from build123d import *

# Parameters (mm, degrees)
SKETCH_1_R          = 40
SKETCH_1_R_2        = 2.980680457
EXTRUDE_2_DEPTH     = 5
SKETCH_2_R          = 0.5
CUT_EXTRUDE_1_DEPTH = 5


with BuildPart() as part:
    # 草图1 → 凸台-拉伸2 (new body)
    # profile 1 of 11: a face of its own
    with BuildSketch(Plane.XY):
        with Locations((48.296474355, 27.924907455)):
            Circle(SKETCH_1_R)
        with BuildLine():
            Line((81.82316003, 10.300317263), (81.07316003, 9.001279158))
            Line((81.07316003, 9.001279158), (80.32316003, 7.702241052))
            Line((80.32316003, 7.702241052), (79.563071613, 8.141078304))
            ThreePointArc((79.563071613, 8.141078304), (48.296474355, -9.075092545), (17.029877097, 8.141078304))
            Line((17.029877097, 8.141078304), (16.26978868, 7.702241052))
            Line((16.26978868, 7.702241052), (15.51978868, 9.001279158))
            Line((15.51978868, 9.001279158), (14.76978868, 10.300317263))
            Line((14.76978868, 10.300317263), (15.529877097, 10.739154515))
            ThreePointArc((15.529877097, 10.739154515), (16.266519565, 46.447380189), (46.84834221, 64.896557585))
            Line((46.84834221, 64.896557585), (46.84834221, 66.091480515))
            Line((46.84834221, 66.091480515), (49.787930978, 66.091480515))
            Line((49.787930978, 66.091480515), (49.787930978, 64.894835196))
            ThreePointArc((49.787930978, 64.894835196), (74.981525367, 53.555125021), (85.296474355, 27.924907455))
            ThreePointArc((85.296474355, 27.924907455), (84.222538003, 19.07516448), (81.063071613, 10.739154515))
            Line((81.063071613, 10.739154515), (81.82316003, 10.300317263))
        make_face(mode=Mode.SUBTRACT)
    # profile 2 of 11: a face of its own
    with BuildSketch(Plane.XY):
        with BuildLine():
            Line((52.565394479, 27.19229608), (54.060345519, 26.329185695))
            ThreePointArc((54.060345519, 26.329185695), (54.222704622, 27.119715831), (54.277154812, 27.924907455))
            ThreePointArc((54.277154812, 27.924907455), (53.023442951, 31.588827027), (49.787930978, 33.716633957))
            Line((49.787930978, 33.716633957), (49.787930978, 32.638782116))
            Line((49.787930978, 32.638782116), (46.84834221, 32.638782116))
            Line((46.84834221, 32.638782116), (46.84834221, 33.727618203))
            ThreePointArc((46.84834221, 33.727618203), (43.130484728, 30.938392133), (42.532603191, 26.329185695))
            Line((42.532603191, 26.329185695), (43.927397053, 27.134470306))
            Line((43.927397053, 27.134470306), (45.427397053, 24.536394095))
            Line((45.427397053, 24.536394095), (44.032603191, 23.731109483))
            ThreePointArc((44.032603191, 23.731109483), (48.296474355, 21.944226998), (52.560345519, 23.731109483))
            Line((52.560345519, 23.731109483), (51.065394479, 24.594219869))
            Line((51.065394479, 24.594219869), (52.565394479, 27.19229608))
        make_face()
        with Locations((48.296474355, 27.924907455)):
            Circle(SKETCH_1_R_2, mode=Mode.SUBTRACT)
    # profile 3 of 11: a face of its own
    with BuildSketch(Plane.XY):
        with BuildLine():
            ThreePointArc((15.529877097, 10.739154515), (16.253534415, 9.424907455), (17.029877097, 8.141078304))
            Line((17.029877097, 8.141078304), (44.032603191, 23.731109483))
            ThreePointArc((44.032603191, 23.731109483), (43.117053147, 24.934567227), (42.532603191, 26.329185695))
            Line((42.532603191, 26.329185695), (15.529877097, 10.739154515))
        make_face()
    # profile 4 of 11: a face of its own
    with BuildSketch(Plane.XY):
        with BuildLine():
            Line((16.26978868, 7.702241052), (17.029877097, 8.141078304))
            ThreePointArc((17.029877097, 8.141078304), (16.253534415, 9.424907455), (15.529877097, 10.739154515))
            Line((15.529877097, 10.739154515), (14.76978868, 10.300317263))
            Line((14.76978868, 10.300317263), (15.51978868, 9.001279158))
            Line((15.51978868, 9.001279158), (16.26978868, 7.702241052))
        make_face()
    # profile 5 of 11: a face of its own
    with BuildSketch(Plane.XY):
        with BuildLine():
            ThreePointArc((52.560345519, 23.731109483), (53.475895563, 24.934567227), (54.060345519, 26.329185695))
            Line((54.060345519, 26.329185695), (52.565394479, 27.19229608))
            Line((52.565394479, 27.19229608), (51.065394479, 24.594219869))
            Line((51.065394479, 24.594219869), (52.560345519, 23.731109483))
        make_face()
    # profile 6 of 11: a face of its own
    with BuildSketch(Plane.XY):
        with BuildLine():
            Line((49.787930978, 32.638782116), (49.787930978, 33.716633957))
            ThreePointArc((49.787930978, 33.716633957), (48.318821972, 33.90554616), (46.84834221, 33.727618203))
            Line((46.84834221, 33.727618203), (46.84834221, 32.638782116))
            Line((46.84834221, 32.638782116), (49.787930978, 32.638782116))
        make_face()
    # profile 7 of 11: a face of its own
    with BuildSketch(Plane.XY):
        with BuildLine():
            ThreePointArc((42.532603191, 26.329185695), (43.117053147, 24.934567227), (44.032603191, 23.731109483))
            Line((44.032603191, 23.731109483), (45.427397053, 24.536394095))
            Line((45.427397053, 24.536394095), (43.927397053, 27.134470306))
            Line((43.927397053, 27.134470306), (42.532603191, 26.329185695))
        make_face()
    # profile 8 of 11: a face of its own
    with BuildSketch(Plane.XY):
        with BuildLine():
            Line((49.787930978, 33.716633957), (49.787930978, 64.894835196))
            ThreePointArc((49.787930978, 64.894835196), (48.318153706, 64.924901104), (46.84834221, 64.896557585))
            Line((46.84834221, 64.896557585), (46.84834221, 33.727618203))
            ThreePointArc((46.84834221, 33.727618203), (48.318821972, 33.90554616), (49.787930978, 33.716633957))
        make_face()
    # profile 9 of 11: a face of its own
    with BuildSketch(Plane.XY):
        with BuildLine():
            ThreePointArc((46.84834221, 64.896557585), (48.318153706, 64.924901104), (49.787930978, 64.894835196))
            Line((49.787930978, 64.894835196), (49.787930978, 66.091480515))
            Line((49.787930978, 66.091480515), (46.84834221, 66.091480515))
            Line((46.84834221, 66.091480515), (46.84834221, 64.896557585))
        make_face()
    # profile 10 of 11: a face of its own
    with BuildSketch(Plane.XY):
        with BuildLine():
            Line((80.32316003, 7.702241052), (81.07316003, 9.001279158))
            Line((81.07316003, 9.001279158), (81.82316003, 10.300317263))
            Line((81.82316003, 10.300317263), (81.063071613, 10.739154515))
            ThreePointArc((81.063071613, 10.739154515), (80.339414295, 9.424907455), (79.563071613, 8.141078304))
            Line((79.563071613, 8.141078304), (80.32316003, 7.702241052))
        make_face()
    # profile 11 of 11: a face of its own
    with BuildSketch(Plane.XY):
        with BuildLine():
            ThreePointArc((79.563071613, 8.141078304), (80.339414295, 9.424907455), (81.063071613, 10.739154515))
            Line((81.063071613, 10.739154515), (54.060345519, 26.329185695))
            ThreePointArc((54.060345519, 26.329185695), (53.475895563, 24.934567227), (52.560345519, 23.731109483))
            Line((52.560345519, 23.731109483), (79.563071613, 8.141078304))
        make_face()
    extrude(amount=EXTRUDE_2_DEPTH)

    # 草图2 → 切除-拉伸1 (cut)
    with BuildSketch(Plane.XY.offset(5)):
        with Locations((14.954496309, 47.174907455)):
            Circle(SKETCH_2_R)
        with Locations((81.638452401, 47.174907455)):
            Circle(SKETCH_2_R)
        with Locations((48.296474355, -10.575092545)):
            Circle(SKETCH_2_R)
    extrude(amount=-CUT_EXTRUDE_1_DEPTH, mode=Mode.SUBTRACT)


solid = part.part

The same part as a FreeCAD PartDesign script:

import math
import FreeCAD as App
import Part
import Sketcher
Q = App.Units.Quantity

doc = App.newDocument("Part")
body = doc.addObject("PartDesign::Body", "Body")

sketch1 = doc.addObject("Sketcher::SketchObject", "Sketch")
body.addObject(sketch1)
sketch1.AttachmentSupport = (doc.XY_Plane, [""])
sketch1.MapMode = "FlatFace"
sketch1.addGeometry([
    Part.Circle(App.Vector(48.3, 27.9, 0), App.Vector(0, 0, 1), 40),
    Part.ArcOfCircle(Part.Circle(App.Vector(48.3, 27.9, 0), App.Vector(0, 0, 1), 37), math.radians(-28), math.radians(0)),
    Part.LineSegment(App.Vector(81.1, 10.7, 0), App.Vector(54.1, 26.3, 0)),
    Part.ArcOfCircle(Part.Circle(App.Vector(48.3, 27.9, 0), App.Vector(0, 0, 1), 6), math.radians(-15.47), math.radians(0)),
    Part.ArcOfCircle(Part.Circle(App.Vector(48.3, 27.9, 0), App.Vector(0, 0, 1), 6), math.radians(0), math.radians(76)),
    Part.LineSegment(App.Vector(49.8, 33.7, 0), App.Vector(49.8, 64.9, 0)),
    Part.ArcOfCircle(Part.Circle(App.Vector(48.3, 27.9, 0), App.Vector(0, 0, 1), 37), math.radians(0), math.radians(88)),
    Part.ArcOfCircle(Part.Circle(App.Vector(48.3, 27.9, 0), App.Vector(0, 0, 1), 37), math.radians(92), math.radians(208)),
    Part.LineSegment(App.Vector(46.8, 64.9, 0), App.Vector(46.8, 33.7, 0)),
    Part.ArcOfCircle(Part.Circle(App.Vector(48.3, 27.9, 0), App.Vector(0, 0, 1), 6), math.radians(104), math.radians(195)),
    Part.LineSegment(App.Vector(42.5, 26.3, 0), App.Vector(15.5, 10.7, 0)),
    Part.ArcOfCircle(Part.Circle(App.Vector(48.3, 27.9, 0), App.Vector(0, 0, 1), 37), math.radians(-148), math.radians(-32)),
    Part.LineSegment(App.Vector(17, 8.1, 0), App.Vector(44, 23.7, 0)),
    Part.ArcOfCircle(Part.Circle(App.Vector(48.3, 27.9, 0), App.Vector(0, 0, 1), 6), math.radians(-135), math.radians(-45)),
    Part.LineSegment(App.Vector(52.6, 23.7, 0), App.Vector(79.6, 8.1, 0)),
    Part.Circle(App.Vector(48.3, 27.9, 0), App.Vector(0, 0, 1), 3),
], False)
sketch1.addConstraint([
    Sketcher.Constraint("Coincident", 1, 1, 2, 1),
    Sketcher.Constraint("Coincident", 2, 2, 3, 1),
    Sketcher.Constraint("Tangent", 3, 2, 4, 1),
    Sketcher.Constraint("Coincident", 4, 2, 5, 1),
    Sketcher.Constraint("Coincident", 5, 2, 6, 2),
    Sketcher.Constraint("Tangent", 6, 1, 1, 2),
    Sketcher.Constraint("Coincident", 7, 1, 8, 1),
    Sketcher.Constraint("Coincident", 8, 2, 9, 1),
    Sketcher.Constraint("Coincident", 9, 2, 10, 1),
    Sketcher.Constraint("Coincident", 10, 2, 7, 2),
    Sketcher.Constraint("Coincident", 11, 1, 12, 1),
    Sketcher.Constraint("Coincident", 12, 2, 13, 1),
    Sketcher.Constraint("Coincident", 13, 2, 14, 1),
    Sketcher.Constraint("Coincident", 14, 2, 11, 2),
    Sketcher.Constraint("Vertical", 5),
    Sketcher.Constraint("Vertical", 8),
    Sketcher.Constraint("Coincident", 1, 3, 0, 3),
    Sketcher.Constraint("Coincident", 3, 3, 0, 3),
    Sketcher.Constraint("Coincident", 7, 3, 0, 3),
    Sketcher.Constraint("Coincident", 9, 3, 0, 3),
    Sketcher.Constraint("Coincident", 11, 3, 0, 3),
    Sketcher.Constraint("Coincident", 13, 3, 0, 3),
    Sketcher.Constraint("Coincident", 15, 3, 0, 3),
    Sketcher.Constraint("Equal", 3, 4),
    Sketcher.Constraint("Equal", 1, 6),
    Sketcher.Constraint("Equal", 6, 7),
    Sketcher.Constraint("Equal", 4, 9),
    Sketcher.Constraint("Equal", 7, 11),
    Sketcher.Constraint("Equal", 9, 13),
    Sketcher.Constraint("Parallel", 10, 12),
    Sketcher.Constraint("Parallel", 2, 14),
    Sketcher.Constraint("Horizontal", 15, 3, 3, 2),
    Sketcher.Constraint("Horizontal", 3, 2, 6, 1),
    Sketcher.Constraint("Horizontal", 2, 2, 9, 2),
    Sketcher.Constraint("Horizontal", 1, 1, 10, 2),
    Sketcher.Constraint("Horizontal", 12, 2, 13, 2),
    Sketcher.Constraint("Equal", 10, 12),
    Sketcher.Constraint("Diameter", 0, Q("80 mm")),
    Sketcher.Constraint("Radius", 1, Q("37 mm")),
    Sketcher.Constraint("Angle", 2, Q("150 deg")),
    Sketcher.Constraint("DistanceX", 10, 2, 11, 1, Q("1.5 mm")),
    Sketcher.Constraint("Diameter", 15, Q("5.961361 mm")),
    Sketcher.Constraint("Radius", 3, Q("5.98068 mm")),
    Sketcher.Constraint("DistanceY", 5, 1, 5, 2, Q("31.178201 mm")),
    Sketcher.Constraint("DistanceY", 8, 2, 8, 1, Q("31.168939 mm")),
    Sketcher.Constraint("DistanceX", -1, 1, 1, 1, Q("81.063072 mm")),
    Sketcher.Constraint("DistanceY", -1, 1, 8, 2, Q("33.727618 mm")),
])
pad1 = doc.addObject("PartDesign::Pad", "Pad")
body.addObject(pad1)
pad1.Profile = sketch1
pad1.Length = 5

sketch2 = doc.addObject("Sketcher::SketchObject", "Sketch001")
body.addObject(sketch2)
sketch2.AttachmentSupport = (doc.XY_Plane, [""])
sketch2.MapMode = "FlatFace"
sketch2.AttachmentOffset = App.Placement(App.Vector(0, 0, 5), App.Rotation())
sketch2.addGeometry([
    Part.Circle(App.Vector(15, 47.2, 0), App.Vector(0, 0, 1), 0.5),
    Part.Circle(App.Vector(81.6, 47.2, 0), App.Vector(0, 0, 1), 0.5),
    Part.Circle(App.Vector(48.3, -10.6, 0), App.Vector(0, 0, 1), 0.5),
], False)
sketch2.addConstraint([
    Sketcher.Constraint("Equal", 0, 1),
    Sketcher.Constraint("Equal", 1, 2),
    Sketcher.Constraint("Horizontal", 0, 3, 1, 3),
    Sketcher.Constraint("Diameter", 0, Q("1 mm")),
    Sketcher.Constraint("DistanceY", 2, 3, 1, 3, Q("57.75 mm")),
    Sketcher.Constraint("DistanceX", 2, 3, 1, 3, Q("33.341978 mm")),
    Sketcher.Constraint("DistanceX", 0, 3, 2, 3, Q("33.341978 mm")),
    Sketcher.Constraint("DistanceX", -1, 1, 0, 3, Q("14.954496 mm")),
    Sketcher.Constraint("DistanceY", -1, 1, 0, 3, Q("47.174907 mm")),
])
pocket1 = doc.addObject("PartDesign::Pocket", "Pocket")
body.addObject(pocket1)
pocket1.Profile = sketch2
pocket1.Length = 5

doc.recompute()
